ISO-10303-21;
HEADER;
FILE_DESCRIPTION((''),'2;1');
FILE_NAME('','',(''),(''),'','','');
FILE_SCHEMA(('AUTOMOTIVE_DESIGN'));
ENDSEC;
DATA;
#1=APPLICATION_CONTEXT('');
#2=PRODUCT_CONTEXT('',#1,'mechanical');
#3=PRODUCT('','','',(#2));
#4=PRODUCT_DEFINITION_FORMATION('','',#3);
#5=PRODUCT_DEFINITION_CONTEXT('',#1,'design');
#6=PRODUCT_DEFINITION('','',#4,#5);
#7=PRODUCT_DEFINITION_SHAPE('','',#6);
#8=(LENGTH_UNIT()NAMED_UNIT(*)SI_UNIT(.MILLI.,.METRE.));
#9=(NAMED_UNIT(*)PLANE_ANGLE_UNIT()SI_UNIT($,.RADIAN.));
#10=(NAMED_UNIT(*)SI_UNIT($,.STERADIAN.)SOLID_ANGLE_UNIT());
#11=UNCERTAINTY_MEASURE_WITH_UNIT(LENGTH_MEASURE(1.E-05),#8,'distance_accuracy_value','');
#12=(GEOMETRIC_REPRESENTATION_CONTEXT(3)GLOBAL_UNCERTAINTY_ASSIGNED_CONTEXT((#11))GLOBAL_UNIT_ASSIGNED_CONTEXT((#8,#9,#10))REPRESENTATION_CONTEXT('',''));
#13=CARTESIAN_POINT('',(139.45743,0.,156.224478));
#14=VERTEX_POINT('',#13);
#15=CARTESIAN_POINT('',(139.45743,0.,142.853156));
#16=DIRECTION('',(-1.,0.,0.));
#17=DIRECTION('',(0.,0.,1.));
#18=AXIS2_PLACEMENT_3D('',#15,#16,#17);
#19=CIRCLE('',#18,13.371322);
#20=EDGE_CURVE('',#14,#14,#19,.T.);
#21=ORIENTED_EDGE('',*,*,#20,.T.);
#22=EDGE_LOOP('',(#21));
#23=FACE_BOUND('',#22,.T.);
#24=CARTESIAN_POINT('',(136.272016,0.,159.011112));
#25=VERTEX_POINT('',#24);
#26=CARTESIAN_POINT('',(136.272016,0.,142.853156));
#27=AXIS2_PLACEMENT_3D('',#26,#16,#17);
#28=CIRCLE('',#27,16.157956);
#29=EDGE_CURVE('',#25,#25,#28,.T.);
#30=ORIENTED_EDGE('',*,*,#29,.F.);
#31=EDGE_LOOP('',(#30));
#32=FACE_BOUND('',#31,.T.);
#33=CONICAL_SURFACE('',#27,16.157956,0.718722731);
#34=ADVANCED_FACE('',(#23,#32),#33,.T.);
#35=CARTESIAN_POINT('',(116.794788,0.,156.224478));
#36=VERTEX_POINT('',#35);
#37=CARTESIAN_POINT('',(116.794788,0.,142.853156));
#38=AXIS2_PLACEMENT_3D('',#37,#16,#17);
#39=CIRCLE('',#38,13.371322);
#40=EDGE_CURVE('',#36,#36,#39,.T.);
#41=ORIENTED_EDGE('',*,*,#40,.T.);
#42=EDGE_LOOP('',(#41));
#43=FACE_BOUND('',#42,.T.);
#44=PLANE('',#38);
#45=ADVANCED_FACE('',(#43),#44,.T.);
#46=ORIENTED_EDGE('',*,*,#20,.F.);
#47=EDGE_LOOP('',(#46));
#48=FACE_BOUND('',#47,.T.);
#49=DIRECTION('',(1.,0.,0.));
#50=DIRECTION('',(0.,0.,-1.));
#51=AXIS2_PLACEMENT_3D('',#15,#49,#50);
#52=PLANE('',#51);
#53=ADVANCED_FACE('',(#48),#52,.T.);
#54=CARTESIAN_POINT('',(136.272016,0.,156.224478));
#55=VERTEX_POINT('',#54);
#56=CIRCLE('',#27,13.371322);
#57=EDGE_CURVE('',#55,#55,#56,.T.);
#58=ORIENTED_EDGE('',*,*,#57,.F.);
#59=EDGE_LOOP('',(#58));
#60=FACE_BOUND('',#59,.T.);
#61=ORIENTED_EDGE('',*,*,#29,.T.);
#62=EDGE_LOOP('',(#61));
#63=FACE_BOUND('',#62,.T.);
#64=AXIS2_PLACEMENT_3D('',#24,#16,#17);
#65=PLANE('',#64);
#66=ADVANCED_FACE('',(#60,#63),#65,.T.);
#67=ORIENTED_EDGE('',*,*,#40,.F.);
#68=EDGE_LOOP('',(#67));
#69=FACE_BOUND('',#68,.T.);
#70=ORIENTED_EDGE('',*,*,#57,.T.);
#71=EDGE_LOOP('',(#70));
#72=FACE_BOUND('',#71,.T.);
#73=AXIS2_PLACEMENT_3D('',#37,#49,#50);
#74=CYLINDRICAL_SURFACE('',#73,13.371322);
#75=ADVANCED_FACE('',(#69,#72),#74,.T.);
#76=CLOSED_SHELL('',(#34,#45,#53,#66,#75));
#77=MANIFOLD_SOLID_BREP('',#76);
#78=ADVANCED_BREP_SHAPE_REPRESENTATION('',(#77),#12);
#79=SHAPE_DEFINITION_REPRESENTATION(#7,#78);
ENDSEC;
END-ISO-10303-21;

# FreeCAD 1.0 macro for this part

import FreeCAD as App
import Part
import Sketcher
from FreeCAD import Vector

doc = App.newDocument("Part")
body = doc.addObject("PartDesign::Body", "Body")

# Sketch on XZ plane
sketch1 = doc.addObject("Sketcher::SketchObject", "Sketch")
body.addObject(sketch1)
sketch1.AttachmentSupport = (doc.XZ_Plane, [""])
sketch1.MapMode = "FlatFace"
sketch1.addGeometry([
    Part.LineSegment(Vector(139.5, 156.2, 0), Vector(139.5, 142.9, 0)),
    Part.LineSegment(Vector(139.5, 142.9, 0), Vector(136.3, 142.9, 0)),
    Part.LineSegment(Vector(136.3, 142.9, 0), Vector(136.3, 159, 0)),
    Part.LineSegment(Vector(136.3, 159, 0), Vector(139.5, 156.2, 0)),
], False)
sketch1.addGeometry(Part.LineSegment(Vector(136.3, 142.9, 0), Vector(139.5, 142.9, 0)), True)  # axis
sketch1.addConstraint([
    Sketcher.Constraint("Coincident", 0, 2, 1, 1),
    Sketcher.Constraint("Coincident", 1, 2, 2, 1),
    Sketcher.Constraint("Coincident", 2, 2, 3, 1),
    Sketcher.Constraint("Coincident", 3, 2, 0, 1),
    Sketcher.Constraint("Vertical", 0),
    Sketcher.Constraint("Horizontal", 1),
    Sketcher.Constraint("Vertical", 2),
    Sketcher.Constraint("Horizontal", 4),
    Sketcher.Constraint("Coincident", 4, 1, 1, 2),
    Sketcher.Constraint("Vertical", 3, 2, 4, 2),
    Sketcher.Constraint("DistanceY", 0, 2, 0, 1, 13.371322),
    Sketcher.Constraint("Distance", 3, 4.23228),
    Sketcher.Constraint("DistanceX", 1, 2, 1, 1, 3.185414),
    Sketcher.Constraint("DistanceX", -1, 1, 0, 2, 139.45743),
    Sketcher.Constraint("DistanceY", -1, 1, 2, 2, 159.011112),
])
revolution = doc.addObject("PartDesign::Revolution", "Revolution")
body.addObject(revolution)
revolution.Profile = sketch1
revolution.ReferenceAxis = (sketch1, ["Axis0"])
revolution.Angle = 360

# Sketch on YZ plane
sketch2 = doc.addObject("Sketcher::SketchObject", "Sketch001")
body.addObject(sketch2)
sketch2.AttachmentSupport = (doc.YZ_Plane, [""])
sketch2.MapMode = "FlatFace"
sketch2.AttachmentOffset = App.Placement(Vector(0, 0, 136.272016), App.Rotation())
sketch2.addGeometry(Part.Circle(Vector(0, 143, 0), Vector(0, 0, 1), 13), False)
sketch2.addConstraint([
    Sketcher.Constraint("PointOnObject", 0, 3, -2),
    Sketcher.Constraint("Diameter", 0, 26.742644),
    Sketcher.Constraint("DistanceY", -1, 1, 0, 3, 142.853156),
])
pad1 = doc.addObject("PartDesign::Pad", "Pad")
body.addObject(pad1)
pad1.Profile = sketch2
pad1.Length = 19.477228
pad1.Reversed = True

doc.recompute()
